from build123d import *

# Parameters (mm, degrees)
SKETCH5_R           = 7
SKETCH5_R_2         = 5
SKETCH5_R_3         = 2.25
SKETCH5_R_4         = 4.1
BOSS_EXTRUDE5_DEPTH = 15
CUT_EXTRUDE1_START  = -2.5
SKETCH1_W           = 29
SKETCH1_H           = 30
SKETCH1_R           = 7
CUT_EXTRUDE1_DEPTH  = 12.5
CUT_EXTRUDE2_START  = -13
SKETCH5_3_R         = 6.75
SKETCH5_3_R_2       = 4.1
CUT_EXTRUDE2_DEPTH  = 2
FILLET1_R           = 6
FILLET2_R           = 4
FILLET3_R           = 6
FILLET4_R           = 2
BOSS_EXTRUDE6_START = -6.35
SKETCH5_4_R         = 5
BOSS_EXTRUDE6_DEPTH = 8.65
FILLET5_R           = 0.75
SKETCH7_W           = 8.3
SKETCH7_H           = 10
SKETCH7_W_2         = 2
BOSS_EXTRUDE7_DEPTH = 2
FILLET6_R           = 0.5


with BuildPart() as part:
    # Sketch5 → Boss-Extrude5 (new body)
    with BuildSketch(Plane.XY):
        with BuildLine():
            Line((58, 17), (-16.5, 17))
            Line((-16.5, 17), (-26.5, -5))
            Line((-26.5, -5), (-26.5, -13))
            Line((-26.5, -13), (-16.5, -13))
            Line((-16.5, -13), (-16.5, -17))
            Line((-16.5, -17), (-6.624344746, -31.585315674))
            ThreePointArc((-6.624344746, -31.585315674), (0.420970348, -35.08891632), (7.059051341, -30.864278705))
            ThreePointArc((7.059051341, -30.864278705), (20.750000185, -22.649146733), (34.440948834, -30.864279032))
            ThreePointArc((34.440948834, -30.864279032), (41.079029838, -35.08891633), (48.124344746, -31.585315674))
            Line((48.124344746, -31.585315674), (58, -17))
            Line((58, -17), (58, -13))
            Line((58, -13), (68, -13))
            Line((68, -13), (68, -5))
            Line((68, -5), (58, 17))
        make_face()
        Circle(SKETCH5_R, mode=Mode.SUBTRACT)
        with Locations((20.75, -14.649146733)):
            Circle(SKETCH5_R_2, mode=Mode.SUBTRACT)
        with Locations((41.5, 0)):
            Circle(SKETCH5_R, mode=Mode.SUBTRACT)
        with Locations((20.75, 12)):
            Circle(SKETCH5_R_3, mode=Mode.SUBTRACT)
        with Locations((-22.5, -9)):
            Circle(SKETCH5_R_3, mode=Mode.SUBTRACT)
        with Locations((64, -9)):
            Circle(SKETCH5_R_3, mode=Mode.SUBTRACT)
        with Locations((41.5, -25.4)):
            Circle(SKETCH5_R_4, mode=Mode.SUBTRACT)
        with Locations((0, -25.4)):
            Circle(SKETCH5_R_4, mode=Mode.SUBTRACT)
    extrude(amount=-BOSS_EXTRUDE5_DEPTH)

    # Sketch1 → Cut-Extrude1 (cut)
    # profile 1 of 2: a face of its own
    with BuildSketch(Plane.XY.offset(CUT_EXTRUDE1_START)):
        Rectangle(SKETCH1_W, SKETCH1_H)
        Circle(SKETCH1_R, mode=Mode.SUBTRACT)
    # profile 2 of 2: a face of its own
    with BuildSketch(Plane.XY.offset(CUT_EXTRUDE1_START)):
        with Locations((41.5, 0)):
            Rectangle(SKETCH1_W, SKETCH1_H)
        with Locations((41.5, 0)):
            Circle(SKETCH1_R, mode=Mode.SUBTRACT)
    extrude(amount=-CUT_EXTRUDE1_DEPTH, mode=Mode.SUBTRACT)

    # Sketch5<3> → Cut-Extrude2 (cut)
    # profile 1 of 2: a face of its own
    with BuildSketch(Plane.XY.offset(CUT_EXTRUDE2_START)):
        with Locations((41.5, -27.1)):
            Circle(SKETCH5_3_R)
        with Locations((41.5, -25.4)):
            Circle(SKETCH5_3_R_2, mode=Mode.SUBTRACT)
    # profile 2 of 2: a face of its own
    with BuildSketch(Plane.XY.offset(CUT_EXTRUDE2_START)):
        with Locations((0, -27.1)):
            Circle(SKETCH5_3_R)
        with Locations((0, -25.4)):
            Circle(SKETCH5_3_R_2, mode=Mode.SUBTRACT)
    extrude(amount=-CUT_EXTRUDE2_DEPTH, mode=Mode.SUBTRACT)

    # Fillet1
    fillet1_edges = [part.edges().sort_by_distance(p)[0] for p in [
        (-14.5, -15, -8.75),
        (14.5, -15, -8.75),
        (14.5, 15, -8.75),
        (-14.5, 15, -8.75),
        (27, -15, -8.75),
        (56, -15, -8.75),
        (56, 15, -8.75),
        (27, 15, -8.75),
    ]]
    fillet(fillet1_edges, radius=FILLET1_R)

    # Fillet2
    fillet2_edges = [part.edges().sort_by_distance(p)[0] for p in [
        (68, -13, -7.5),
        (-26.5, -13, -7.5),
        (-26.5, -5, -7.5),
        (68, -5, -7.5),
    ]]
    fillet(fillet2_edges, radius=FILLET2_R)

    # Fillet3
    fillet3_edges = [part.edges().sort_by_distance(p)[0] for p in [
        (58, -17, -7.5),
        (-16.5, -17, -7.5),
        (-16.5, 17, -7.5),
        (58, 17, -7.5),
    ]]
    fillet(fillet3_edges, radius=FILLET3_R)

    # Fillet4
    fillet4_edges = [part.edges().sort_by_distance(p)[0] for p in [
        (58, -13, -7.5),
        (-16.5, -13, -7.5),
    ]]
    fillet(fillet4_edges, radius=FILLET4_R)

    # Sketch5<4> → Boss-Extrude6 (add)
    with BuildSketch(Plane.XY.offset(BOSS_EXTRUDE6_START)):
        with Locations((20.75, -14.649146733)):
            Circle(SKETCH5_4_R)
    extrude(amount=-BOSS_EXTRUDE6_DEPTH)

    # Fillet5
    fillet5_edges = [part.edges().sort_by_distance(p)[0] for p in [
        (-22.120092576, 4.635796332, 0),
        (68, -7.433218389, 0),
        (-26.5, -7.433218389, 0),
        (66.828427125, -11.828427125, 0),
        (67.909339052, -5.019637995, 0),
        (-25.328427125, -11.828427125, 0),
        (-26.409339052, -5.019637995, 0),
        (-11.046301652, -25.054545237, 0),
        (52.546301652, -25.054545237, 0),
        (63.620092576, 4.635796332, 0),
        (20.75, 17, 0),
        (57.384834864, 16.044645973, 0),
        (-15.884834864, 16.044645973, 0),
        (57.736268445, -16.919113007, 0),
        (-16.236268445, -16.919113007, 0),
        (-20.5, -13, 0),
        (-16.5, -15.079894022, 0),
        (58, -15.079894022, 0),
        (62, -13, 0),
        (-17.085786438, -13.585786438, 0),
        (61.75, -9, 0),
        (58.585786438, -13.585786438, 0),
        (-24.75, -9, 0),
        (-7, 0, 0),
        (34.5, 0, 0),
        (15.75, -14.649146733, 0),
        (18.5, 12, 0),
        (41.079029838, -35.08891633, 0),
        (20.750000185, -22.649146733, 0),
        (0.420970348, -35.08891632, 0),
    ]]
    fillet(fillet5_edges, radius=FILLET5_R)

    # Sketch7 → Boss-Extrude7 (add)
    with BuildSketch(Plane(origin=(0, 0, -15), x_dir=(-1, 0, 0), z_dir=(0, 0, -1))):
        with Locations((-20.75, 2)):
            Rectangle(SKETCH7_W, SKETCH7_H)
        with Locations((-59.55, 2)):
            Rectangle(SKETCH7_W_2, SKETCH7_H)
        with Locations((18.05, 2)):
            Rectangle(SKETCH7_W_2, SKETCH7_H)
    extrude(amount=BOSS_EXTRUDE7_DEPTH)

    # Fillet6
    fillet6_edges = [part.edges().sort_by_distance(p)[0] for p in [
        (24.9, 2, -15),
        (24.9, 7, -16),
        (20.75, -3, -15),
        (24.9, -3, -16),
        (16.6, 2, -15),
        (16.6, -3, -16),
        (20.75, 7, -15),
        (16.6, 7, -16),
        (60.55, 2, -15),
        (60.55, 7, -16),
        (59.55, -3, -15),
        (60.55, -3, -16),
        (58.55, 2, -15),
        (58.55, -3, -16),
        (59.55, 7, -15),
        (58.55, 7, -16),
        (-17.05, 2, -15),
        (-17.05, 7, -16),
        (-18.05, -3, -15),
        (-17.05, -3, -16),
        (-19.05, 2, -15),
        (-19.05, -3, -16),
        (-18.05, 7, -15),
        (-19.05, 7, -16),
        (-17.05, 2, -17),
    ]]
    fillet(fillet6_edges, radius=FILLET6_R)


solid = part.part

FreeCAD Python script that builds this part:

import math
import FreeCAD as App
import Part
import Sketcher

V = App.Vector


def edges_at(feature, points):
    """Names of the edges that pass closest to the given points."""
    edges = feature.Shape.Edges
    near = lambda p: min(range(len(edges)), key=lambda i: edges[i].distToShape(Part.Vertex(*p))[0])
    return sorted({f"Edge{near(p) + 1}" for p in points})

doc = App.newDocument("Part")
params = doc.addObject("Spreadsheet::Sheet", "Params")
for row, (alias, value) in enumerate([
    ("sketch1_diameter", "10 mm"),
    ("sketch1_diameter2", "14 mm"),
    ("sketch1_radius", "8 mm"),
    ("sketch1_diameter3", "8.2 mm"),
    ("sketch1_diameter4", "4.5 mm"),
    ("pad1_length", "15 mm"),
    ("sketch2_diameter", "14 mm"),
    ("sketch2_width", "29 mm"),
    ("sketch2_height", "30 mm"),
    ("pocket1_length", "12.5 mm"),
    ("sketch3_diameter", "13.5 mm"),
    ("sketch3_diameter2", "8.2 mm"),
    ("pocket2_length", "2 mm"),
    ("fillet_radius", "6 mm"),
    ("fillet2_radius", "4 mm"),
    ("fillet3_radius", "6 mm"),
    ("fillet4_radius", "2 mm"),
    ("sketch4_diameter", "10 mm"),
    ("pad2_length", "8.65 mm"),
    ("fillet5_radius", "0.75 mm"),
    ("sketch5_width", "2 mm"),
    ("sketch5_height", "10 mm"),
    ("sketch5_width2", "8.3 mm"),
    ("pad3_length", "2 mm"),
    ("fillet6_radius", "0.5 mm"),
], start=1):
    params.set(f"A{row}", alias)
    params.set(f"B{row}", "=" + value)
    params.setAlias(f"B{row}", alias)

body = doc.addObject("PartDesign::Body", "Body")

# Sketch on XY plane
sketch1 = body.newObject("Sketcher::SketchObject", "Sketch")
sketch1.AttachmentSupport = (doc.getObject("XY_Plane"), [""])
sketch1.MapMode = "FlatFace"
sketch1.addGeometry([
    Part.LineSegment(V(58, 17, 0), V(-16.5, 17, 0)),  # 0
    Part.LineSegment(V(-16.5, 17, 0), V(-26.5, -5, 0)),  # 1
    Part.LineSegment(V(-26.5, -5, 0), V(-26.5, -13, 0)),  # 2
    Part.LineSegment(V(-26.5, -13, 0), V(-16.5, -13, 0)),  # 3
    Part.LineSegment(V(-16.5, -13, 0), V(-16.5, -17, 0)),  # 4
    Part.LineSegment(V(-16.5, -17, 0), V(-6.6, -31.6, 0)),  # 5
    Part.ArcOfCircle(Part.Circle(V(0, -27.1, 0), V(0, 0, 1), 8), math.radians(-146), math.radians(-28)),  # 6
    Part.ArcOfCircle(Part.Circle(V(20.8, -38.2, 0), V(0, 0, 1), 15.5), math.radians(28), math.radians(152)),  # 7
    Part.ArcOfCircle(Part.Circle(V(41.5, -27.1, 0), V(0, 0, 1), 8), math.radians(-152), math.radians(-34)),  # 8
    Part.LineSegment(V(48.1, -31.6, 0), V(58, -17, 0)),  # 9
    Part.LineSegment(V(58, -17, 0), V(58, -13, 0)),  # 10
    Part.LineSegment(V(58, -13, 0), V(68, -13, 0)),  # 11
    Part.LineSegment(V(68, -13, 0), V(68, -5, 0)),  # 12
    Part.LineSegment(V(68, -5, 0), V(58, 17, 0)),  # 13
    Part.Circle(V(0, -25.4, 0), V(0, 0, 1), 4.1),  # 14
    Part.Circle(V(-22.5, -9, 0), V(0, 0, 1), 2.2),  # 15
    Part.Circle(V(41.5, -25.4, 0), V(0, 0, 1), 4.1),  # 16
    Part.Circle(V(20.8, -14.6, 0), V(0, 0, 1), 5),  # 17
    Part.Circle(V(64, -9, 0), V(0, 0, 1), 2.2),  # 18
    Part.Circle(V(0, 0, 0), V(0, 0, 1), 7),  # 19
    Part.Circle(V(41.5, 0, 0), V(0, 0, 1), 7),  # 20
    Part.Circle(V(20.8, 12, 0), V(0, 0, 1), 2.2),  # 21
], False)
sketch1.addConstraint([
    Sketcher.Constraint("Coincident", 0, 2, 1, 1),
    Sketcher.Constraint("Coincident", 1, 2, 2, 1),
    Sketcher.Constraint("Coincident", 2, 2, 3, 1),
    Sketcher.Constraint("Coincident", 3, 2, 4, 1),
    Sketcher.Constraint("Coincident", 4, 2, 5, 1),
    Sketcher.Constraint("Tangent", 5, 2, 6, 1),
    Sketcher.Constraint("Tangent", 6, 2, 7, 2),
    Sketcher.Constraint("Tangent", 7, 1, 8, 1),
    Sketcher.Constraint("Tangent", 8, 2, 9, 1),
    Sketcher.Constraint("Coincident", 9, 2, 10, 1),
    Sketcher.Constraint("Coincident", 10, 2, 11, 1),
    Sketcher.Constraint("Coincident", 11, 2, 12, 1),
    Sketcher.Constraint("Coincident", 12, 2, 13, 1),
    Sketcher.Constraint("Coincident", 13, 2, 0, 1),
    Sketcher.Constraint("Horizontal", 0),
    Sketcher.Constraint("Vertical", 2),
    Sketcher.Constraint("Horizontal", 3),
    Sketcher.Constraint("Vertical", 4),
    Sketcher.Constraint("Vertical", 10),
    Sketcher.Constraint("Horizontal", 11),
    Sketcher.Constraint("Vertical", 12),
    Sketcher.Constraint("Coincident", 19, 3, -1, 1),
    Sketcher.Constraint("Equal", 6, 8),
    Sketcher.Constraint("Equal", 14, 16),
    Sketcher.Constraint("Equal", 15, 18),
    Sketcher.Constraint("Equal", 19, 20),
    Sketcher.Constraint("Equal", 18, 21),
    Sketcher.Constraint("Symmetric", 0, 2, 4, 2, -1),
    Sketcher.Constraint("Symmetric", 9, 2, 13, 2, -1),
    Sketcher.Constraint("PointOnObject", 6, 3, -2),
    Sketcher.Constraint("PointOnObject", 14, 3, -2),
    Sketcher.Constraint("PointOnObject", 20, 3, -1),
    Sketcher.Constraint("Horizontal", 6, 3, 8, 3),
    Sketcher.Constraint("Horizontal", 14, 3, 16, 3),
    Sketcher.Constraint("Horizontal", 15, 3, 18, 3),
    Sketcher.Constraint("Horizontal", 5, 2, 8, 2),
    Sketcher.Constraint("Horizontal", 3, 2, 10, 2),
    Sketcher.Constraint("Horizontal", 1, 2, 12, 2),
    Sketcher.Constraint("Vertical", 8, 3, 16, 3),
    Sketcher.Constraint("Vertical", 7, 3, 17, 3),
    Sketcher.Constraint("Vertical", 16, 3, 20, 3),
    Sketcher.Constraint("Vertical", 17, 3, 21, 3),
    Sketcher.Constraint("Equal", 3, 11),
    Sketcher.Constraint("Diameter", 17, 10.0),
    Sketcher.Constraint("Diameter", 19, 14.0),
    Sketcher.Constraint("Radius", 6, 8.0),
    Sketcher.Constraint("Diameter", 14, 8.2),
    Sketcher.Constraint("Diameter", 15, 4.5),
    Sketcher.Constraint("DistanceX", 3, 1, 3, 2, 10.0),
    Sketcher.Constraint("DistanceY", 2, 2, 2, 1, 8.0),
    Sketcher.Constraint("DistanceY", 4, 2, 4, 1, 4.0),
    Sketcher.Constraint("DistanceX", 0, 2, 0, 1, 74.5),
    Sketcher.Constraint("DistanceY", 15, 3, -1, 1, 9.0),
    Sketcher.Constraint("DistanceX", -1, 1, 18, 3, 64.0),
    Sketcher.Constraint("DistanceY", -1, 1, 21, 3, 12.0),
    Sketcher.Constraint("DistanceY", -1, 1, 0, 2, 17.0),
    Sketcher.Constraint("DistanceX", -1, 1, 9, 2, 58.0),
    Sketcher.Constraint("DistanceX", 15, 3, 8, 3, 64.0),
    Sketcher.Constraint("DistanceY", 6, 3, -1, 1, 27.1),
    Sketcher.Constraint("DistanceY", 14, 3, -1, 1, 25.4),
    Sketcher.Constraint("Radius", 7, 15.515908),
    Sketcher.Constraint("DistanceY", 7, 3, 17, 3, 23.515908),
])
sketch1.setExpression("Constraints[43]", "Params.sketch1_diameter")
sketch1.setExpression("Constraints[44]", "Params.sketch1_diameter2")
sketch1.setExpression("Constraints[45]", "Params.sketch1_radius")
sketch1.setExpression("Constraints[46]", "Params.sketch1_diameter3")
sketch1.setExpression("Constraints[47]", "Params.sketch1_diameter4")
pad1 = body.newObject("PartDesign::Pad", "Pad")
pad1.Profile = sketch1
pad1.setExpression("Length", "Params.pad1_length")
pad1.Reversed = True

# Sketch on XY plane
sketch2 = body.newObject("Sketcher::SketchObject", "Sketch001")
sketch2.AttachmentSupport = (doc.getObject("XY_Plane"), [""])
sketch2.MapMode = "FlatFace"
sketch2.AttachmentOffset = App.Placement(V(0, 0, -2.5), App.Rotation())
sketch2.addGeometry([
    Part.LineSegment(V(-14, 15, 0), V(-14, -15, 0)),  # 0
    Part.LineSegment(V(-14, -15, 0), V(14, -15, 0)),  # 1
    Part.LineSegment(V(14, -15, 0), V(14, 15, 0)),  # 2
    Part.LineSegment(V(14, 15, 0), V(-14, 15, 0)),  # 3
    Part.Circle(V(0, 0, 0), V(0, 0, 1), 7),  # 4
    Part.LineSegment(V(27, 15, 0), V(27, -15, 0)),  # 5
    Part.LineSegment(V(27, -15, 0), V(56, -15, 0)),  # 6
    Part.LineSegment(V(56, -15, 0), V(56, 15, 0)),  # 7
    Part.LineSegment(V(56, 15, 0), V(27, 15, 0)),  # 8
    Part.Circle(V(42, 0, 0), V(0, 0, 1), 7),  # 9
], False)
sketch2.addConstraint([
    Sketcher.Constraint("Coincident", 0, 2, 1, 1),
    Sketcher.Constraint("Coincident", 1, 2, 2, 1),
    Sketcher.Constraint("Coincident", 2, 2, 3, 1),
    Sketcher.Constraint("Coincident", 3, 2, 0, 1),
    Sketcher.Constraint("Coincident", 5, 2, 6, 1),
    Sketcher.Constraint("Coincident", 6, 2, 7, 1),
    Sketcher.Constraint("Coincident", 7, 2, 8, 1),
    Sketcher.Constraint("Coincident", 8, 2, 5, 1),
    Sketcher.Constraint("Vertical", 0),
    Sketcher.Constraint("Horizontal", 1),
    Sketcher.Constraint("Vertical", 2),
    Sketcher.Constraint("Horizontal", 3),
    Sketcher.Constraint("Vertical", 5),
    Sketcher.Constraint("Horizontal", 6),
    Sketcher.Constraint("Vertical", 7),
    Sketcher.Constraint("Horizontal", 8),
    Sketcher.Constraint("Coincident", 4, 3, -1, 1),
    Sketcher.Constraint("Equal", 4, 9),
    Sketcher.Constraint("Symmetric", 0, 2, 2, 2, -1, 1),
    Sketcher.Constraint("PointOnObject", 9, 3, -1),
    Sketcher.Constraint("Horizontal", 1, 2, 5, 2),
    Sketcher.Constraint("Horizontal", 3, 2, 7, 2),
    Sketcher.Constraint("Equal", 3, 6),
    Sketcher.Constraint("Diameter", 4, 14.0),
    Sketcher.Constraint("DistanceX", 1, 1, 1, 2, 29.0),
    Sketcher.Constraint("DistanceY", 0, 2, 0, 1, 30.0),
    Sketcher.Constraint("DistanceX", -1, 1, 5, 2, 27.0),
    Sketcher.Constraint("DistanceX", 0, 2, 9, 3, 56.0),
])
sketch2.setExpression("Constraints[23]", "Params.sketch2_diameter")
sketch2.setExpression("Constraints[24]", "Params.sketch2_width")
sketch2.setExpression("Constraints[25]", "Params.sketch2_height")
pocket1 = body.newObject("PartDesign::Pocket", "Pocket")
pocket1.Profile = sketch2
pocket1.setExpression("Length", "Params.pocket1_length")

# Sketch on XY plane
sketch3 = body.newObject("Sketcher::SketchObject", "Sketch002")
sketch3.AttachmentSupport = (doc.getObject("XY_Plane"), [""])
sketch3.MapMode = "FlatFace"
sketch3.AttachmentOffset = App.Placement(V(0, 0, -13), App.Rotation())
sketch3.addGeometry([
    Part.Circle(V(41.5, -27.1, 0), V(0, 0, 1), 6.8),
    Part.Circle(V(41.5, -25.4, 0), V(0, 0, 1), 4.1),
    Part.Circle(V(0, -27.1, 0), V(0, 0, 1), 6.8),
    Part.Circle(V(0, -25.4, 0), V(0, 0, 1), 4.1),
], False)
sketch3.addConstraint([
    Sketcher.Constraint("Equal", 0, 2),
    Sketcher.Constraint("Equal", 1, 3),
    Sketcher.Constraint("PointOnObject", 2, 3, -2),
    Sketcher.Constraint("PointOnObject", 3, 3, -2),
    Sketcher.Constraint("Horizontal", 0, 3, 2, 3),
    Sketcher.Constraint("Horizontal", 1, 3, 3, 3),
    Sketcher.Constraint("Vertical", 0, 3, 1, 3),
    Sketcher.Constraint("Diameter", 0, 13.5),
    Sketcher.Constraint("Diameter", 1, 8.2),
    Sketcher.Constraint("DistanceX", -1, 1, 0, 3, 41.5),
    Sketcher.Constraint("DistanceY", 0, 3, -1, 1, 27.1),
    Sketcher.Constraint("DistanceY", 1, 3, -1, 1, 25.4),
])
sketch3.setExpression("Constraints[7]", "Params.sketch3_diameter")
sketch3.setExpression("Constraints[8]", "Params.sketch3_diameter2")
pocket2 = body.newObject("PartDesign::Pocket", "Pocket001")
pocket2.Profile = sketch3
pocket2.setExpression("Length", "Params.pocket2_length")
doc.recompute()

fillet = body.newObject("PartDesign::Fillet", "Fillet")
fillet.Base = (pocket2, edges_at(pocket2, [
    (-14.5, -15, -8.75),
    (14.5, -15, -8.75),
    (14.5, 15, -8.75),
    (-14.5, 15, -8.75),
    (27, -15, -8.75),
    (56, -15, -8.75),
    (56, 15, -8.75),
    (27, 15, -8.75),
]))
fillet.setExpression("Radius", "Params.fillet_radius")
doc.recompute()

fillet2 = body.newObject("PartDesign::Fillet", "Fillet001")
fillet2.Base = (fillet, edges_at(fillet, [
    (68, -13, -7.5),
    (-26.5, -13, -7.5),
    (-26.5, -5, -7.5),
    (68, -5, -7.5),
]))
fillet2.setExpression("Radius", "Params.fillet2_radius")
doc.recompute()

fillet3 = body.newObject("PartDesign::Fillet", "Fillet002")
fillet3.Base = (fillet2, edges_at(fillet2, [
    (58, -17, -7.5),
    (-16.5, -17, -7.5),
    (-16.5, 17, -7.5),
    (58, 17, -7.5),
]))
fillet3.setExpression("Radius", "Params.fillet3_radius")
doc.recompute()

fillet4 = body.newObject("PartDesign::Fillet", "Fillet003")
fillet4.Base = (fillet3, edges_at(fillet3, [(58, -13, -7.5), (-16.5, -13, -7.5)]))
fillet4.setExpression("Radius", "Params.fillet4_radius")

# Sketch on XY plane
sketch4 = body.newObject("Sketcher::SketchObject", "Sketch003")
sketch4.AttachmentSupport = (doc.getObject("XY_Plane"), [""])
sketch4.MapMode = "FlatFace"
sketch4.AttachmentOffset = App.Placement(V(0, 0, -6.35), App.Rotation())
sketch4.addGeometry(Part.Circle(V(21, -15, 0), V(0, 0, 1), 5), False)
sketch4.addConstraint([
    Sketcher.Constraint("Diameter", 0, 10.0),
    Sketcher.Constraint("DistanceX", -1, 1, 0, 3, 20.75),
    Sketcher.Constraint("DistanceY", 0, 3, -1, 1, 14.649147),
])
sketch4.setExpression("Constraints[0]", "Params.sketch4_diameter")
pad2 = body.newObject("PartDesign::Pad", "Pad001")
pad2.Profile = sketch4
pad2.setExpression("Length", "Params.pad2_length")
pad2.Reversed = True
doc.recompute()

fillet5 = body.newObject("PartDesign::Fillet", "Fillet004")
fillet5.Base = (pad2, edges_at(pad2, [
    (-22.12, 4.636, 0),
    (68, -7.433, 0),
    (-26.5, -7.433, 0),
    (66.828, -11.828, 0),
    (67.909, -5.02, 0),
    (-25.328, -11.828, 0),
    (-26.409, -5.02, 0),
    (-11.046, -25.055, 0),
    (52.546, -25.055, 0),
    (63.62, 4.636, 0),
    (20.75, 17, 0),
    (57.385, 16.045, 0),
    (-15.885, 16.045, 0),
    (57.736, -16.919, 0),
    (-16.236, -16.919, 0),
    (-20.5, -13, 0),
    (-16.5, -15.08, 0),
    (58, -15.08, 0),
    (62, -13, 0),
    (-17.086, -13.586, 0),
    (61.75, -9, 0),
    (58.586, -13.586, 0),
    (-24.75, -9, 0),
    (-7, 0, 0),
    (34.5, 0, 0),
    (15.75, -14.649, 0),
    (18.5, 12, 0),
    (41.079, -35.089, 0),
    (20.75, -22.649, 0),
    (0.421, -35.089, 0),
]))
fillet5.setExpression("Radius", "Params.fillet5_radius")

# Sketch on XY plane
sketch5 = body.newObject("Sketcher::SketchObject", "Sketch004")
sketch5.AttachmentSupport = (doc.getObject("XY_Plane"), [""])
sketch5.MapMode = "FlatFace"
sketch5.AttachmentOffset = App.Placement(V(0, 0, -15), App.Rotation())
sketch5.addGeometry([
    Part.LineSegment(V(24.9, 7, 0), V(24.9, -3, 0)),  # 0
    Part.LineSegment(V(24.9, -3, 0), V(16.6, -3, 0)),  # 1
    Part.LineSegment(V(16.6, -3, 0), V(16.6, 7, 0)),  # 2
    Part.LineSegment(V(16.6, 7, 0), V(24.9, 7, 0)),  # 3
    Part.LineSegment(V(60.5, 7, 0), V(60.5, -3, 0)),  # 4
    Part.LineSegment(V(60.5, -3, 0), V(58.5, -3, 0)),  # 5
    Part.LineSegment(V(58.5, -3, 0), V(58.5, 7, 0)),  # 6
    Part.LineSegment(V(58.5, 7, 0), V(60.5, 7, 0)),  # 7
    Part.LineSegment(V(-17.1, 7, 0), V(-17.1, -3, 0)),  # 8
    Part.LineSegment(V(-17.1, -3, 0), V(-19.1, -3, 0)),  # 9
    Part.LineSegment(V(-19.1, -3, 0), V(-19.1, 7, 0)),  # 10
    Part.LineSegment(V(-19.1, 7, 0), V(-17.1, 7, 0)),  # 11
], False)
sketch5.addConstraint([
    Sketcher.Constraint("Coincident", 0, 2, 1, 1),
    Sketcher.Constraint("Coincident", 1, 2, 2, 1),
    Sketcher.Constraint("Coincident", 2, 2, 3, 1),
    Sketcher.Constraint("Coincident", 3, 2, 0, 1),
    Sketcher.Constraint("Coincident", 4, 2, 5, 1),
    Sketcher.Constraint("Coincident", 5, 2, 6, 1),
    Sketcher.Constraint("Coincident", 6, 2, 7, 1),
    Sketcher.Constraint("Coincident", 7, 2, 4, 1),
    Sketcher.Constraint("Coincident", 8, 2, 9, 1),
    Sketcher.Constraint("Coincident", 9, 2, 10, 1),
    Sketcher.Constraint("Coincident", 10, 2, 11, 1),
    Sketcher.Constraint("Coincident", 11, 2, 8, 1),
    Sketcher.Constraint("Vertical", 0),
    Sketcher.Constraint("Horizontal", 1),
    Sketcher.Constraint("Vertical", 2),
    Sketcher.Constraint("Horizontal", 3),
    Sketcher.Constraint("Vertical", 4),
    Sketcher.Constraint("Horizontal", 5),
    Sketcher.Constraint("Vertical", 6),
    Sketcher.Constraint("Horizontal", 7),
    Sketcher.Constraint("Vertical", 8),
    Sketcher.Constraint("Horizontal", 9),
    Sketcher.Constraint("Vertical", 10),
    Sketcher.Constraint("Horizontal", 11),
    Sketcher.Constraint("Horizontal", 1, 2, 4, 2),
    Sketcher.Constraint("Horizontal", 3, 2, 6, 2),
    Sketcher.Constraint("Horizontal", 5, 2, 8, 2),
    Sketcher.Constraint("Horizontal", 7, 2, 10, 2),
    Sketcher.Constraint("Equal", 7, 9),
    Sketcher.Constraint("DistanceX", 5, 2, 5, 1, 2.0),
    Sketcher.Constraint("DistanceY", 0, 2, 0, 1, 10.0),
    Sketcher.Constraint("DistanceX", 1, 2, 1, 1, 8.3),
    Sketcher.Constraint("DistanceY", 0, 2, -1, 1, 3.0),
    Sketcher.Constraint("DistanceX", -1, 1, 0, 2, 24.9),
    Sketcher.Constraint("DistanceX", 8, 2, 5, 2, 75.6),
    Sketcher.Constraint("DistanceX", -1, 1, 4, 2, 60.55),
])
sketch5.setExpression("Constraints[29]", "Params.sketch5_width")
sketch5.setExpression("Constraints[30]", "Params.sketch5_height")
sketch5.setExpression("Constraints[31]", "Params.sketch5_width2")
pad3 = body.newObject("PartDesign::Pad", "Pad002")
pad3.Profile = sketch5
pad3.setExpression("Length", "Params.pad3_length")
pad3.Reversed = True
doc.recompute()

fillet6 = body.newObject("PartDesign::Fillet", "Fillet005")
fillet6.Base = (pad3, edges_at(pad3, [
    (24.9, 2, -15),
    (24.9, 7, -16),
    (20.75, -3, -15),
    (24.9, -3, -16),
    (16.6, 2, -15),
    (16.6, -3, -16),
    (20.75, 7, -15),
    (16.6, 7, -16),
    (60.55, 2, -15),
    (60.55, 7, -16),
    (59.55, -3, -15),
    (60.55, -3, -16),
    (58.55, 2, -15),
    (58.55, -3, -16),
    (59.55, 7, -15),
    (58.55, 7, -16),
    (-17.05, 2, -15),
    (-17.05, 7, -16),
    (-18.05, -3, -15),
    (-17.05, -3, -16),
    (-19.05, 2, -15),
    (-19.05, -3, -16),
    (-18.05, 7, -15),
    (-19.05, 7, -16),
    (-17.05, 2, -17),
]))
fillet6.setExpression("Radius", "Params.fillet6_radius")

doc.recompute()
